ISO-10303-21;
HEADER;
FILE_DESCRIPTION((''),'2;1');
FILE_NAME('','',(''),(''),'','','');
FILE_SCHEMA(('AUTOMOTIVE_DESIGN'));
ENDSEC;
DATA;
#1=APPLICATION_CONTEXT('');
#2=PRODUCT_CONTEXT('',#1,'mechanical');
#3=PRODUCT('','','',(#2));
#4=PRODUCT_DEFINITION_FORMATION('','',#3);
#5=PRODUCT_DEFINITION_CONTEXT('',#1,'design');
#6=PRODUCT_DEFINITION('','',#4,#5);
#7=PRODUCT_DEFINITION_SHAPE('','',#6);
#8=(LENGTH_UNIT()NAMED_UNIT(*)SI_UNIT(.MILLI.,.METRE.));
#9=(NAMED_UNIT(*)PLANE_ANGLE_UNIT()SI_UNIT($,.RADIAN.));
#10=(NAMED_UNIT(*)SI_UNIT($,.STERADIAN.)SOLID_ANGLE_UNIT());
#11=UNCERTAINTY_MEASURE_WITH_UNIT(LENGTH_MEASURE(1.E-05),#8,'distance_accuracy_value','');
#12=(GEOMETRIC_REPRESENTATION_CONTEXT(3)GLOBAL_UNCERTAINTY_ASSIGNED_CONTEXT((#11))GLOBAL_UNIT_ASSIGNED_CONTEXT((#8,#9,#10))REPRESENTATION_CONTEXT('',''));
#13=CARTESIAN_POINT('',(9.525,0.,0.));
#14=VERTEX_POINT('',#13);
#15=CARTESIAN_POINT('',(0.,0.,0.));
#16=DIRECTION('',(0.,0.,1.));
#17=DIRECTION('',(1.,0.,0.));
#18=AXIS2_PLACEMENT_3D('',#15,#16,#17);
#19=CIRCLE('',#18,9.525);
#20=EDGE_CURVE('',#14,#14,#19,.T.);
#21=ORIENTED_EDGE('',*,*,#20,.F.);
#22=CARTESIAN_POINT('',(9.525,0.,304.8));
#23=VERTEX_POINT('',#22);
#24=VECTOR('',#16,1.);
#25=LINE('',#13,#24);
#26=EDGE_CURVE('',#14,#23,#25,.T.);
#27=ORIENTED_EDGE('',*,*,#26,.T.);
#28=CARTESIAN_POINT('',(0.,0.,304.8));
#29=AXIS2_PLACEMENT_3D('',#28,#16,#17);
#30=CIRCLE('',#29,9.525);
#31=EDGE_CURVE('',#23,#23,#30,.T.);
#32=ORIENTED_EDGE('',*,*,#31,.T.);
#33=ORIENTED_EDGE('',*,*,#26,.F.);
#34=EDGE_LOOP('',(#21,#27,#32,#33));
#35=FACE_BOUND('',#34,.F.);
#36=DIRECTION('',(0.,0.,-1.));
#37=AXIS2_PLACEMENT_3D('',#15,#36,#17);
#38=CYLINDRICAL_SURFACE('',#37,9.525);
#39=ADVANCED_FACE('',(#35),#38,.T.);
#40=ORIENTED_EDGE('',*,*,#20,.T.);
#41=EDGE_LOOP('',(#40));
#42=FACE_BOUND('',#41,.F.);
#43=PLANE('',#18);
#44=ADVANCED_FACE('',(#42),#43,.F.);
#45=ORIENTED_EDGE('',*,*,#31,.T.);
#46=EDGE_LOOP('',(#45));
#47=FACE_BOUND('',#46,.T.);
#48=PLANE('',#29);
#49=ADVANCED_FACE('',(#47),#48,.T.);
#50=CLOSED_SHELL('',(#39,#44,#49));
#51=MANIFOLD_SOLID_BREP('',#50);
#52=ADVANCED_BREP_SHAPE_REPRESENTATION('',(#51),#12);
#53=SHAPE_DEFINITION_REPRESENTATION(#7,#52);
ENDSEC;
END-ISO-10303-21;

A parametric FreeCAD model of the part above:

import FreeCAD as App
import Part
import Sketcher

V = App.Vector
Q = App.Units.Quantity

doc = App.newDocument("Part")
body = doc.addObject("PartDesign::Body", "Body")

# Sketch on XY plane
sketch1 = body.newObject("Sketcher::SketchObject", "Sketch")
sketch1.AttachmentSupport = (doc.getObject("XY_Plane"), [""])
sketch1.MapMode = "FlatFace"
sketch1.addGeometry(Part.Circle(V(0, 0, 0), V(0, 0, 1), 10), False)
sketch1.addConstraint([
    Sketcher.Constraint("Coincident", 0, 3, -1, 1),
    Sketcher.Constraint("Diameter", 0, Q("0.75 in")),
])
pad1 = body.newObject("PartDesign::Pad", "Pad")
pad1.Profile = sketch1
pad1.Length = Q("12 in")

doc.recompute()
